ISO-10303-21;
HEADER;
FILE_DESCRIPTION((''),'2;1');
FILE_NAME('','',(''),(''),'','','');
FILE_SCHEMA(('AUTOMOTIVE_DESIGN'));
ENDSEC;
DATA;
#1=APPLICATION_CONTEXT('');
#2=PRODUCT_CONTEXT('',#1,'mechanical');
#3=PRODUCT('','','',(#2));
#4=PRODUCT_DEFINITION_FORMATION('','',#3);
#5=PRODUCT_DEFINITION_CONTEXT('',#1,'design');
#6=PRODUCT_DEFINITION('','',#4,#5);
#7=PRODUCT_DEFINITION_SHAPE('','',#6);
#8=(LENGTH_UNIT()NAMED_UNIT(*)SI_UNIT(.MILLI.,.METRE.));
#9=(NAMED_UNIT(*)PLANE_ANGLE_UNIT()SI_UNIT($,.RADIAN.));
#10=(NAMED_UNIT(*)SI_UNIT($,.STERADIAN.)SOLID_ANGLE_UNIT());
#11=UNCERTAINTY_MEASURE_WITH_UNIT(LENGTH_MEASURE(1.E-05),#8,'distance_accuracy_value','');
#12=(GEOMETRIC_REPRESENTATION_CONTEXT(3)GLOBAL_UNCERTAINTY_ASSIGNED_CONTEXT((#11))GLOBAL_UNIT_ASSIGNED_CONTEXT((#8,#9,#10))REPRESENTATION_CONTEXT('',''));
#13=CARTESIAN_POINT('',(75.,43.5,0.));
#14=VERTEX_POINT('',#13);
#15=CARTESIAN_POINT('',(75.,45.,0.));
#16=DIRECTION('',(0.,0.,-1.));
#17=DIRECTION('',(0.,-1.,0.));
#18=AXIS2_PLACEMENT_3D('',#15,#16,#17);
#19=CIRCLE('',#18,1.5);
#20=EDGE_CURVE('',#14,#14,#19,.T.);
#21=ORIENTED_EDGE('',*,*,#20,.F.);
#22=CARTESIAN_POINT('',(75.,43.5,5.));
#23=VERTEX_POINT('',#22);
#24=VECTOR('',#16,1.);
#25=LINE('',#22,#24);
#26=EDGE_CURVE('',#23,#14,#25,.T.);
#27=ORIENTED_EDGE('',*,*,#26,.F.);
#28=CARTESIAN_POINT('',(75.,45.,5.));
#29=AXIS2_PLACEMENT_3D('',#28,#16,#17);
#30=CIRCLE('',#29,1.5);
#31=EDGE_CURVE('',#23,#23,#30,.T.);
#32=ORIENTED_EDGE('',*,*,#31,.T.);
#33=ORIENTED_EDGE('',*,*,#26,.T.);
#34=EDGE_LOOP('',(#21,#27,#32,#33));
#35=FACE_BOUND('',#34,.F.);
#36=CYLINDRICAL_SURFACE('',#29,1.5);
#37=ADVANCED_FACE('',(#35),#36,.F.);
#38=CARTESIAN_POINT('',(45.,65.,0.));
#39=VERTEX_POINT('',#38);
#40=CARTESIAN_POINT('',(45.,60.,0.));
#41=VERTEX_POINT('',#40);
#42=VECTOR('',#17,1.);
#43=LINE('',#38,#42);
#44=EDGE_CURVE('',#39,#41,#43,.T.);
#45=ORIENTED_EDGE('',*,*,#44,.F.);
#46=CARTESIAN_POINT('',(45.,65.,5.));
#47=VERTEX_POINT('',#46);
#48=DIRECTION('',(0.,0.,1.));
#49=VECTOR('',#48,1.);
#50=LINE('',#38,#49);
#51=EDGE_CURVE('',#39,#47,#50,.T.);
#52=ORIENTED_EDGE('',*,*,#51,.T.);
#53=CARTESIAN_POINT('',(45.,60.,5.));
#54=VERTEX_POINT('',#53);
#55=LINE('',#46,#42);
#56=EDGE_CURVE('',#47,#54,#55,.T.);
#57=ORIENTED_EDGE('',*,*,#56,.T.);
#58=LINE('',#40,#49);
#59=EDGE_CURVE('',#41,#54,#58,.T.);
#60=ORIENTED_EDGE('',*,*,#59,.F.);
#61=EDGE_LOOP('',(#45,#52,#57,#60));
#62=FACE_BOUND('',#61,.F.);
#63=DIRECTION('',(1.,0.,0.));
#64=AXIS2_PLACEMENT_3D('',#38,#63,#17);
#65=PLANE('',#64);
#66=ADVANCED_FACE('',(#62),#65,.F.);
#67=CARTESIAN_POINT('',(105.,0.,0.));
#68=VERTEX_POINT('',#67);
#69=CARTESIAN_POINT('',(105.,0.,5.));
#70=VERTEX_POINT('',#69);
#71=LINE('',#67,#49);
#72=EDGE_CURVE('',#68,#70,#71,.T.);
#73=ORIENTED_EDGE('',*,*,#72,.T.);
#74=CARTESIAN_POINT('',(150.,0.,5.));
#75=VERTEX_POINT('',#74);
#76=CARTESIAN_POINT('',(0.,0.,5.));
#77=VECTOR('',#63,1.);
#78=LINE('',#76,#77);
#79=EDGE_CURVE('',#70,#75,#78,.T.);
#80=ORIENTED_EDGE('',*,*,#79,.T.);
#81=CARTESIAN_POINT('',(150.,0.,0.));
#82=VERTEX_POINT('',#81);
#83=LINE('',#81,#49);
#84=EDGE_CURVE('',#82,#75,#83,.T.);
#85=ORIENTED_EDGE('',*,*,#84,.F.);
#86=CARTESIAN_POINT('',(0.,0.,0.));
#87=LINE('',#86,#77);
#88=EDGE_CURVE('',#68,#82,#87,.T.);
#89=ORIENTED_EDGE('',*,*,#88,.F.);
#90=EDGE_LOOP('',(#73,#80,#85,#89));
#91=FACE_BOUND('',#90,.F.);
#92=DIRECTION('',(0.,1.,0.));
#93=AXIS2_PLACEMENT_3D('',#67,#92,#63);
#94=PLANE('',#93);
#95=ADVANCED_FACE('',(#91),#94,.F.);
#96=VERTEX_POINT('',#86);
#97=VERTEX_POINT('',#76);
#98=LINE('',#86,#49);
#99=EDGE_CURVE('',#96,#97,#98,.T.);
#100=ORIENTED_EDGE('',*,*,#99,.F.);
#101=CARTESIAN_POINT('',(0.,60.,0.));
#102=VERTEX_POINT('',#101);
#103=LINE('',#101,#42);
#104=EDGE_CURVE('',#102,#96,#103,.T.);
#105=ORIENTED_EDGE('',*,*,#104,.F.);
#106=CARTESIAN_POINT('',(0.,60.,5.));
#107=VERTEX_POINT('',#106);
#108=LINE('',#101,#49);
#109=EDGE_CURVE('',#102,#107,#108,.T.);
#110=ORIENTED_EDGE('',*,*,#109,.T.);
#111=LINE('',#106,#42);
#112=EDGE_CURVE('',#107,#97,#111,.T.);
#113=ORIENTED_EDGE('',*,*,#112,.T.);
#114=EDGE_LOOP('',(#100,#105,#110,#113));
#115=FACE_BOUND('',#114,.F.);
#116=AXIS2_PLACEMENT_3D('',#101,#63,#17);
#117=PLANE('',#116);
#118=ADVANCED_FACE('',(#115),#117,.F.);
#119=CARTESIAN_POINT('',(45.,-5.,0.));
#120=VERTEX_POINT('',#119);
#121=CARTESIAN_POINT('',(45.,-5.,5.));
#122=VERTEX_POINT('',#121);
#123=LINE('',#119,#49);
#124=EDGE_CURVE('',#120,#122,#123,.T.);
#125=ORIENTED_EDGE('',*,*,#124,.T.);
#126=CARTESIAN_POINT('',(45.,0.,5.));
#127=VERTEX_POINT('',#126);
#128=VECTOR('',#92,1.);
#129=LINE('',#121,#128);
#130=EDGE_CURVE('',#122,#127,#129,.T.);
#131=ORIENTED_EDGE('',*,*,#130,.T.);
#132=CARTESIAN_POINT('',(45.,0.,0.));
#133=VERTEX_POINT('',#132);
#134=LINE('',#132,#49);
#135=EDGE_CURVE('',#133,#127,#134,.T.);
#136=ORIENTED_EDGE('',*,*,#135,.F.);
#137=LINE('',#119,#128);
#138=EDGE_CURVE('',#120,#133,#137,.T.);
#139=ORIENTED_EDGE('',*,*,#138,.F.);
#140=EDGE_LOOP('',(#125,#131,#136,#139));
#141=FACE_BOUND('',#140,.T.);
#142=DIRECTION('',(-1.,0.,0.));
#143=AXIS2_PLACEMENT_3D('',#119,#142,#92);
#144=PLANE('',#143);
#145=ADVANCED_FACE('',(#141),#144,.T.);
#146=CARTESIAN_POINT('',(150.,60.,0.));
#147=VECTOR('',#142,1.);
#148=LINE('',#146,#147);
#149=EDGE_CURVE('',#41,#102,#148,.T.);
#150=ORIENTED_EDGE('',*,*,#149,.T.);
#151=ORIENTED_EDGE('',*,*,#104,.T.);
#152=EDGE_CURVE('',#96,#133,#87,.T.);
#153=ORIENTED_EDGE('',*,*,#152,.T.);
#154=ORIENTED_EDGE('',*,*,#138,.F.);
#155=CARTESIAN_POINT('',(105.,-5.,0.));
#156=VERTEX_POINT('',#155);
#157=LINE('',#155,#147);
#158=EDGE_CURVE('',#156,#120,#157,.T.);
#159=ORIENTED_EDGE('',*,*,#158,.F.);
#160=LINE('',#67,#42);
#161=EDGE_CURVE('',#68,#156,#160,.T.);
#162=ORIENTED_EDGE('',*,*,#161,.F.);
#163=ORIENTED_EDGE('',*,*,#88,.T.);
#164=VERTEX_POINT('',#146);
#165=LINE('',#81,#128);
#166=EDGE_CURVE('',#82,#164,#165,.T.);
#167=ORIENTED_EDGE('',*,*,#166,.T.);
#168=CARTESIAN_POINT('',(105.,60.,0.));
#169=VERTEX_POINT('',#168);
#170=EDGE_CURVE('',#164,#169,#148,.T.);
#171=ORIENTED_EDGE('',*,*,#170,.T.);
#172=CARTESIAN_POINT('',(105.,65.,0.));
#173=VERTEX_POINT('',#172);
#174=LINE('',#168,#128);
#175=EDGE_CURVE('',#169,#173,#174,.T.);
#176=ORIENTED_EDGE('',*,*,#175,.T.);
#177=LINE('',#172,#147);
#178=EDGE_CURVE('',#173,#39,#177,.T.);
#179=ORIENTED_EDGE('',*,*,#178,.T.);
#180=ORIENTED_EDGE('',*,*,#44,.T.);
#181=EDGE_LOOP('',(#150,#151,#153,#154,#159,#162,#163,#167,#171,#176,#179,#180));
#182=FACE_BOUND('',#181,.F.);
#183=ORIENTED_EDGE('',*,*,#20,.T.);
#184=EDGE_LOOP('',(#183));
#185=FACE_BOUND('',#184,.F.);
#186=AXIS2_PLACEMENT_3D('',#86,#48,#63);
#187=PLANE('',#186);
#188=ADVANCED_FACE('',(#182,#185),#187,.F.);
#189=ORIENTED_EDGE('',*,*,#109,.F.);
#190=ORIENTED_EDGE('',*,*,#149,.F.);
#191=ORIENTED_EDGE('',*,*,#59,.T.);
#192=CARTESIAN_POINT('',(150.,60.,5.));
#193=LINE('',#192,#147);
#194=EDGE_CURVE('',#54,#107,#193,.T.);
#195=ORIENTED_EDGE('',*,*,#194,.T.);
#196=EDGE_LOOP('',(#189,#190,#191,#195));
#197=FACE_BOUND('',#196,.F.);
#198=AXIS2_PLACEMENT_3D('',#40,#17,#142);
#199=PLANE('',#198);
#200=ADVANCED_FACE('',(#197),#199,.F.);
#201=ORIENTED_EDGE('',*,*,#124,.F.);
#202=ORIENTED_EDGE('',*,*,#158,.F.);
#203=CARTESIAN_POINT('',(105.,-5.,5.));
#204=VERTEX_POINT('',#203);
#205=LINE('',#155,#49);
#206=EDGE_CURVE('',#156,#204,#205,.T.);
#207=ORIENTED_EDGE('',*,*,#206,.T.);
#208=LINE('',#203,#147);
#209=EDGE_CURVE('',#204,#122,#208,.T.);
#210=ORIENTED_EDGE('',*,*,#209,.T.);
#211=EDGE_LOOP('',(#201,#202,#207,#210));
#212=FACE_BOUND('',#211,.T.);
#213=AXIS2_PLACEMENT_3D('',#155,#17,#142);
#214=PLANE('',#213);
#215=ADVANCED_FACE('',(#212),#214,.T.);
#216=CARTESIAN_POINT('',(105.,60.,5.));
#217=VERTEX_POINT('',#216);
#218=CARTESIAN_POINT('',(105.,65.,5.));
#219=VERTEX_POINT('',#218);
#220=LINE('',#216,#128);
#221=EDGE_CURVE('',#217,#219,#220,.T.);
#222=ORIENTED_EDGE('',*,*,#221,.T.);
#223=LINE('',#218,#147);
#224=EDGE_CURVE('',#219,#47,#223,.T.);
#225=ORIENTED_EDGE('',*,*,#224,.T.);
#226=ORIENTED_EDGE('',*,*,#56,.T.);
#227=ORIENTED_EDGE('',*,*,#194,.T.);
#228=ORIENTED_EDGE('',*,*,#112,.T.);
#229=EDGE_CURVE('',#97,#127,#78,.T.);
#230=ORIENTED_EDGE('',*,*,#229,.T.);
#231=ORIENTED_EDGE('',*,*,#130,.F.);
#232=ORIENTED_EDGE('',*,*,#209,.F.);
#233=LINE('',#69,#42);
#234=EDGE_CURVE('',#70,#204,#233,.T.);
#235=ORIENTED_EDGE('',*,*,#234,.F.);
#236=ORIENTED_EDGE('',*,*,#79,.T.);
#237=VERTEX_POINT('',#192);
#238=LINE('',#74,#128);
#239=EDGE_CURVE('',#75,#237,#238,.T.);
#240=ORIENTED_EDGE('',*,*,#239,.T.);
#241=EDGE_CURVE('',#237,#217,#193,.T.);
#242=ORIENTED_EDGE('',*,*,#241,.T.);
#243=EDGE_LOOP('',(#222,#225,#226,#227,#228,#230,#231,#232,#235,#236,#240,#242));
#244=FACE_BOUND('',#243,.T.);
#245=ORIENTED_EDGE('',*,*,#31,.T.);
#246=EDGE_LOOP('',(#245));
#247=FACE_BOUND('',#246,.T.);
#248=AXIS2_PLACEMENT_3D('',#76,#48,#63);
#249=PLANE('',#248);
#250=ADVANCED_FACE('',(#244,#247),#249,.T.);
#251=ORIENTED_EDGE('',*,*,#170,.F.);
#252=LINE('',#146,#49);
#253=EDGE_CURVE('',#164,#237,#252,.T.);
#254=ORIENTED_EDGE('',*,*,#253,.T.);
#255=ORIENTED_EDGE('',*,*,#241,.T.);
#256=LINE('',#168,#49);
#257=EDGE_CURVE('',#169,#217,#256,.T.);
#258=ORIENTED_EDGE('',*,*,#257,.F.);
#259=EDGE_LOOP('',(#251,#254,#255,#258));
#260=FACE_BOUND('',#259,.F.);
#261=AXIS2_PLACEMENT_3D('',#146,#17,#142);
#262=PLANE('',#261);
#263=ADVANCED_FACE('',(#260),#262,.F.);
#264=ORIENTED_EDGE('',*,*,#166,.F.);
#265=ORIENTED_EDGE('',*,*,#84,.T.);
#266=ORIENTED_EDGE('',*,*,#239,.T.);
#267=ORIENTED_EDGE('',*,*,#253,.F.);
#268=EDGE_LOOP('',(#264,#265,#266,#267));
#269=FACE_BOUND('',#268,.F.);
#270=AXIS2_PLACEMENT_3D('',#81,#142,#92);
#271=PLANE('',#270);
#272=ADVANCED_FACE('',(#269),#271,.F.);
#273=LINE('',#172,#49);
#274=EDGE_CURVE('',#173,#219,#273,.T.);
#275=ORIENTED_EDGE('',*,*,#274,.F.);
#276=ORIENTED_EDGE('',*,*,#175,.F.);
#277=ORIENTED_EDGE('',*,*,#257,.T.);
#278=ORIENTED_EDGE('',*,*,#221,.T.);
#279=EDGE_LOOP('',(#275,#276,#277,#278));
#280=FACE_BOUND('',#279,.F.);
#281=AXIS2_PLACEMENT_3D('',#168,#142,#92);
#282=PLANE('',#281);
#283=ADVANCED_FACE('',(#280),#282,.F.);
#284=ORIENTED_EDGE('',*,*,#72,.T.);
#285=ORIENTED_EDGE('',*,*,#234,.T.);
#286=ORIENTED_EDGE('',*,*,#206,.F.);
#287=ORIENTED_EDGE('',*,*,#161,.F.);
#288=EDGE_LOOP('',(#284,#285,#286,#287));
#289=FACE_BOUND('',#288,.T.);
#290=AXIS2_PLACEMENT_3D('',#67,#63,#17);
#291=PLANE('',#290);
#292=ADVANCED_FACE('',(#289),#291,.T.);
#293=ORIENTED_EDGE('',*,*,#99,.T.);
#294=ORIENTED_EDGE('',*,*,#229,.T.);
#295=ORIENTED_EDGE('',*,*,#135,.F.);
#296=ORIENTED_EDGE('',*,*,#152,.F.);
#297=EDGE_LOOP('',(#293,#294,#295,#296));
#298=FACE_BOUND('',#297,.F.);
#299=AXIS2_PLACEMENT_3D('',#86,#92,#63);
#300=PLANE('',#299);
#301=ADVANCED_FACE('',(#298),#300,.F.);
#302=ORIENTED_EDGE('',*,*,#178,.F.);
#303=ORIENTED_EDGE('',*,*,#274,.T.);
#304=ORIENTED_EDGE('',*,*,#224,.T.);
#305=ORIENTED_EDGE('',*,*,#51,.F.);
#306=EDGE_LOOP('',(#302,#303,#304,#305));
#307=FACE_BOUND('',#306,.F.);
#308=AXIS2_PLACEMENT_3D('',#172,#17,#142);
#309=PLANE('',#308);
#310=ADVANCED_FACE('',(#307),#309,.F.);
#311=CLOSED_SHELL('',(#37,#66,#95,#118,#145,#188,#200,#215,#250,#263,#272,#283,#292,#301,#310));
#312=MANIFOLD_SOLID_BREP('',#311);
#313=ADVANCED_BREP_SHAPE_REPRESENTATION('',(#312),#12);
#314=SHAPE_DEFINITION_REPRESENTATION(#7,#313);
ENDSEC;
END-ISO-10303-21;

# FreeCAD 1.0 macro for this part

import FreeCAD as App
import Part
import Sketcher
from FreeCAD import Vector
Q = App.Units.Quantity


def add_polygon(sketch, points):
    """Adds a closed chain of lines whose ends are joined by coincident constraints."""
    first, n = sketch.GeometryCount, len(points)
    for a, b in zip(points, points[1:] + points[:1]):
        sketch.addGeometry(Part.LineSegment(App.Vector(*a, 0), App.Vector(*b, 0)), False)
    for i in range(n):
        sketch.addConstraint(Sketcher.Constraint("Coincident", first + i, 2, first + (i + 1) % n, 1))

doc = App.newDocument("Part")
body = doc.addObject("PartDesign::Body", "Body")

# Sketch on XY plane
sketch1 = doc.addObject("Sketcher::SketchObject", "Sketch")
body.addObject(sketch1)
sketch1.AttachmentSupport = (doc.XY_Plane, [""])
sketch1.MapMode = "FlatFace"
add_polygon(sketch1, [(0, 60), (0, 0), (45, 0), (45, -5), (105, -5), (105, 0), (150, 0), (150, 60), (105, 60), (105, 65), (45, 65), (45, 60)])  # lines 0-11
sketch1.addConstraint([
    Sketcher.Constraint("Vertical", 0),
    Sketcher.Constraint("Horizontal", 1),
    Sketcher.Constraint("Vertical", 2),
    Sketcher.Constraint("Horizontal", 3),
    Sketcher.Constraint("Vertical", 4),
    Sketcher.Constraint("Horizontal", 5),
    Sketcher.Constraint("Vertical", 6),
    Sketcher.Constraint("Horizontal", 7),
    Sketcher.Constraint("Vertical", 8),
    Sketcher.Constraint("Horizontal", 9),
    Sketcher.Constraint("Vertical", 10),
    Sketcher.Constraint("Horizontal", 11),
    Sketcher.Constraint("Coincident", 0, 2, -1, 1),
    Sketcher.Constraint("PointOnObject", 4, 2, -1),
    Sketcher.Constraint("Horizontal", 7, 2, 10, 2),
    Sketcher.Constraint("Vertical", 4, 2, 7, 2),
    Sketcher.Constraint("Vertical", 2, 2, 9, 2),
    Sketcher.Constraint("Equal", 1, 5),
    Sketcher.Constraint("Equal", 9, 0),
    Sketcher.Constraint("Equal", 4, 8),
    Sketcher.Constraint("DistanceX", 1, 1, 1, 2, Q("45 mm")),
    Sketcher.Constraint("DistanceX", 3, 1, 3, 2, Q("60 mm")),
    Sketcher.Constraint("DistanceY", 2, 2, 2, 1, Q("5 mm")),
])
pad1 = doc.addObject("PartDesign::Pad", "Pad")
body.addObject(pad1)
pad1.Profile = sketch1
pad1.Length = 5

# Sketch on XY plane
sketch2 = doc.addObject("Sketcher::SketchObject", "Sketch001")
body.addObject(sketch2)
sketch2.AttachmentSupport = (doc.XY_Plane, [""])
sketch2.MapMode = "FlatFace"
sketch2.AttachmentOffset = App.Placement(Vector(0, 0, 5), App.Rotation())
sketch2.addGeometry(Part.Circle(Vector(75, 45, 0), Vector(0, 0, 1), 1.5), False)
sketch2.addConstraint([
    Sketcher.Constraint("Diameter", 0, Q("3 mm")),
    Sketcher.Constraint("DistanceX", -1, 1, 0, 3, Q("75 mm")),
    Sketcher.Constraint("DistanceY", -1, 1, 0, 3, Q("45 mm")),
])
doc.recompute()
hole = doc.addObject("PartDesign::Hole", "Hole")
body.addObject(hole)
hole.Profile = sketch2
hole.ThreadType = "None"
hole.Diameter = 3
hole.DepthType = "ThroughAll"

doc.recompute()
